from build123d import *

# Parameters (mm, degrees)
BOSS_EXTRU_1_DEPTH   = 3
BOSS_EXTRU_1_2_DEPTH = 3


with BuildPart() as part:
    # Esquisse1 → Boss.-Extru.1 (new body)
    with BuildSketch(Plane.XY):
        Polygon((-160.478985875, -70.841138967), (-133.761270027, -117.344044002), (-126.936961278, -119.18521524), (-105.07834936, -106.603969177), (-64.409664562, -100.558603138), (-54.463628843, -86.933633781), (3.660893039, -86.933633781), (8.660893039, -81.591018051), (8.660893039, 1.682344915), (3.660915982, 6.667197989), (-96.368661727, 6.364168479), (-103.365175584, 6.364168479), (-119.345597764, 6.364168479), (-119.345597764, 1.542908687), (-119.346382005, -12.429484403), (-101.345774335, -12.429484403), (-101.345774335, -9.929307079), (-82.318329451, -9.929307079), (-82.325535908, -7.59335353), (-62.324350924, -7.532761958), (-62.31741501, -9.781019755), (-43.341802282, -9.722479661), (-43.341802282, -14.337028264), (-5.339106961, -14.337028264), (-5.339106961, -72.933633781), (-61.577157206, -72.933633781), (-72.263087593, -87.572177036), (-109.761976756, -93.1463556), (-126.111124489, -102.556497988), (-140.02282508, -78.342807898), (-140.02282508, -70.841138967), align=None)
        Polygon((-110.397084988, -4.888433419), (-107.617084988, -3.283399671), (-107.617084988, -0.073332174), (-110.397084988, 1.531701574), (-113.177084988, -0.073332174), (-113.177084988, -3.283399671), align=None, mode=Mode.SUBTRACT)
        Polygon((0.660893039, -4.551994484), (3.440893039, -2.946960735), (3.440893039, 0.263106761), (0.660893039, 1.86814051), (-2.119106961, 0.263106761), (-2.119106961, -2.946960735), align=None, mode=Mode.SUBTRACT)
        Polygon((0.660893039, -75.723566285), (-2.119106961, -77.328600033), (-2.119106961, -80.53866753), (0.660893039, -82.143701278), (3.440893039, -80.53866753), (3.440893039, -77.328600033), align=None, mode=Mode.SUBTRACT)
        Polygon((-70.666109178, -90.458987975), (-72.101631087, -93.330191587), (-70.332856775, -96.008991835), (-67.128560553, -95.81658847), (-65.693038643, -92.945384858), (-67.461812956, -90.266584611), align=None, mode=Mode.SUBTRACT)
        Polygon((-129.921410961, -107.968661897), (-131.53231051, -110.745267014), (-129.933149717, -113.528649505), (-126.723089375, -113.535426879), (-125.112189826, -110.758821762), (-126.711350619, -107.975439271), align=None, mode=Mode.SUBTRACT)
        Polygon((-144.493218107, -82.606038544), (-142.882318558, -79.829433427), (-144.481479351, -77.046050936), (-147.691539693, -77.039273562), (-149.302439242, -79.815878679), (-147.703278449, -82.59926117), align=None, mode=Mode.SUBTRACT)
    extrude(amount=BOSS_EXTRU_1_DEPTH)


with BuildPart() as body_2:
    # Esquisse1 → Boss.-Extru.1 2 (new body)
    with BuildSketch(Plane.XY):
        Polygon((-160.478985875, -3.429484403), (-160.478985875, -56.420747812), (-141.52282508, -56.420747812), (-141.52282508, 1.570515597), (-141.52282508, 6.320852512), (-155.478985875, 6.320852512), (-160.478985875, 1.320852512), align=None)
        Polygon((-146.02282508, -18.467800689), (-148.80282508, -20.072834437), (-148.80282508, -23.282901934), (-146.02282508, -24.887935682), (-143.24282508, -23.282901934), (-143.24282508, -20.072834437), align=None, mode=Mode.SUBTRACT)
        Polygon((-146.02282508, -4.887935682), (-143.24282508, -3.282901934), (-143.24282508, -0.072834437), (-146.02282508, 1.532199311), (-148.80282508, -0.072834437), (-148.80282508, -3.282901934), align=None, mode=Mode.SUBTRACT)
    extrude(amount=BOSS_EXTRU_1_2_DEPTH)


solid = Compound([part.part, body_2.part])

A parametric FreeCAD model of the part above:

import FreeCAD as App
import Part
import Sketcher
Q = App.Units.Quantity

doc = App.newDocument("Part")
body = doc.addObject("PartDesign::Body", "Body")

# Sketch on XY plane
sketch1 = body.newObject("Sketcher::SketchObject", "Sketch")
sketch1.AttachmentSupport = (doc.getObject("XY_Plane"), [""])
sketch1.MapMode = "FlatFace"
sketch1.addGeometry([
    Part.LineSegment(App.Vector(-160.5, -70.8, 0), App.Vector(-133.8, -117.3, 0)),  # 0
    Part.LineSegment(App.Vector(-133.8, -117.3, 0), App.Vector(-126.9, -119.2, 0)),  # 1
    Part.LineSegment(App.Vector(-126.9, -119.2, 0), App.Vector(-105.1, -106.6, 0)),  # 2
    Part.LineSegment(App.Vector(-105.1, -106.6, 0), App.Vector(-64.4, -100.6, 0)),  # 3
    Part.LineSegment(App.Vector(-64.4, -100.6, 0), App.Vector(-54.5, -86.9, 0)),  # 4
    Part.LineSegment(App.Vector(-54.5, -86.9, 0), App.Vector(3.7, -86.9, 0)),  # 5
    Part.LineSegment(App.Vector(3.7, -86.9, 0), App.Vector(8.7, -81.6, 0)),  # 6
    Part.LineSegment(App.Vector(8.7, -81.6, 0), App.Vector(8.7, 1.7, 0)),  # 7
    Part.LineSegment(App.Vector(8.7, 1.7, 0), App.Vector(3.7, 6.7, 0)),  # 8
    Part.LineSegment(App.Vector(3.7, 6.7, 0), App.Vector(-96.4, 6.4, 0)),  # 9
    Part.LineSegment(App.Vector(-96.4, 6.4, 0), App.Vector(-119.3, 6.4, 0)),  # 10
    Part.LineSegment(App.Vector(-119.3, 6.4, 0), App.Vector(-119.3, 1.5, 0)),  # 11
    Part.LineSegment(App.Vector(-119.3, 1.5, 0), App.Vector(-119.3, -12.4, 0)),  # 12
    Part.LineSegment(App.Vector(-119.3, -12.4, 0), App.Vector(-101.3, -12.4, 0)),  # 13
    Part.LineSegment(App.Vector(-101.3, -12.4, 0), App.Vector(-101.3, -9.9, 0)),  # 14
    Part.LineSegment(App.Vector(-101.3, -9.9, 0), App.Vector(-82.3, -9.9, 0)),  # 15
    Part.LineSegment(App.Vector(-82.3, -9.9, 0), App.Vector(-82.3, -7.6, 0)),  # 16
    Part.LineSegment(App.Vector(-82.3, -7.6, 0), App.Vector(-62.3, -7.5, 0)),  # 17
    Part.LineSegment(App.Vector(-62.3, -7.5, 0), App.Vector(-62.3, -9.8, 0)),  # 18
    Part.LineSegment(App.Vector(-62.3, -9.8, 0), App.Vector(-43.3, -9.7, 0)),  # 19
    Part.LineSegment(App.Vector(-43.3, -9.7, 0), App.Vector(-43.3, -14.3, 0)),  # 20
    Part.LineSegment(App.Vector(-43.3, -14.3, 0), App.Vector(-5.3, -14.3, 0)),  # 21
    Part.LineSegment(App.Vector(-5.3, -14.3, 0), App.Vector(-5.3, -72.9, 0)),  # 22
    Part.LineSegment(App.Vector(-5.3, -72.9, 0), App.Vector(-61.6, -72.9, 0)),  # 23
    Part.LineSegment(App.Vector(-61.6, -72.9, 0), App.Vector(-72.3, -87.6, 0)),  # 24
    Part.LineSegment(App.Vector(-72.3, -87.6, 0), App.Vector(-109.8, -93.1, 0)),  # 25
    Part.LineSegment(App.Vector(-109.8, -93.1, 0), App.Vector(-126.1, -102.6, 0)),  # 26
    Part.LineSegment(App.Vector(-126.1, -102.6, 0), App.Vector(-140, -78.3, 0)),  # 27
    Part.LineSegment(App.Vector(-140, -78.3, 0), App.Vector(-140, -70.8, 0)),  # 28
    Part.LineSegment(App.Vector(-140, -70.8, 0), App.Vector(-160.5, -70.8, 0)),  # 29
    Part.LineSegment(App.Vector(-131.5, -110.7, 0), App.Vector(-129.9, -108, 0)),  # 30
    Part.LineSegment(App.Vector(-129.9, -108, 0), App.Vector(-126.7, -108, 0)),  # 31
    Part.LineSegment(App.Vector(-126.7, -108, 0), App.Vector(-125.1, -110.8, 0)),  # 32
    Part.LineSegment(App.Vector(-125.1, -110.8, 0), App.Vector(-126.7, -113.5, 0)),  # 33
    Part.LineSegment(App.Vector(-126.7, -113.5, 0), App.Vector(-129.9, -113.5, 0)),  # 34
    Part.LineSegment(App.Vector(-129.9, -113.5, 0), App.Vector(-131.5, -110.7, 0)),  # 35
    Part.LineSegment(App.Vector(-142.9, -79.8, 0), App.Vector(-144.5, -82.6, 0)),  # 36
    Part.LineSegment(App.Vector(-144.5, -82.6, 0), App.Vector(-147.7, -82.6, 0)),  # 37
    Part.LineSegment(App.Vector(-147.7, -82.6, 0), App.Vector(-149.3, -79.8, 0)),  # 38
    Part.LineSegment(App.Vector(-149.3, -79.8, 0), App.Vector(-147.7, -77, 0)),  # 39
    Part.LineSegment(App.Vector(-147.7, -77, 0), App.Vector(-144.5, -77, 0)),  # 40
    Part.LineSegment(App.Vector(-144.5, -77, 0), App.Vector(-142.9, -79.8, 0)),  # 41
    Part.LineSegment(App.Vector(-72.1, -93.3, 0), App.Vector(-70.7, -90.5, 0)),  # 42
    Part.LineSegment(App.Vector(-70.7, -90.5, 0), App.Vector(-67.5, -90.3, 0)),  # 43
    Part.LineSegment(App.Vector(-67.5, -90.3, 0), App.Vector(-65.7, -92.9, 0)),  # 44
    Part.LineSegment(App.Vector(-65.7, -92.9, 0), App.Vector(-67.1, -95.8, 0)),  # 45
    Part.LineSegment(App.Vector(-67.1, -95.8, 0), App.Vector(-70.3, -96, 0)),  # 46
    Part.LineSegment(App.Vector(-70.3, -96, 0), App.Vector(-72.1, -93.3, 0)),  # 47
    Part.LineSegment(App.Vector(-2.1, -77.3, 0), App.Vector(0.7, -75.7, 0)),  # 48
    Part.LineSegment(App.Vector(0.7, -75.7, 0), App.Vector(3.4, -77.3, 0)),  # 49
    Part.LineSegment(App.Vector(3.4, -77.3, 0), App.Vector(3.4, -80.5, 0)),  # 50
    Part.LineSegment(App.Vector(3.4, -80.5, 0), App.Vector(0.7, -82.1, 0)),  # 51
    Part.LineSegment(App.Vector(0.7, -82.1, 0), App.Vector(-2.1, -80.5, 0)),  # 52
    Part.LineSegment(App.Vector(-2.1, -80.5, 0), App.Vector(-2.1, -77.3, 0)),  # 53
    Part.LineSegment(App.Vector(-107.6, -3.3, 0), App.Vector(-110.4, -4.9, 0)),  # 54
    Part.LineSegment(App.Vector(-110.4, -4.9, 0), App.Vector(-113.2, -3.3, 0)),  # 55
    Part.LineSegment(App.Vector(-113.2, -3.3, 0), App.Vector(-113.2, -0.1, 0)),  # 56
    Part.LineSegment(App.Vector(-113.2, -0.1, 0), App.Vector(-110.4, 1.5, 0)),  # 57
    Part.LineSegment(App.Vector(-110.4, 1.5, 0), App.Vector(-107.6, -0.1, 0)),  # 58
    Part.LineSegment(App.Vector(-107.6, -0.1, 0), App.Vector(-107.6, -3.3, 0)),  # 59
    Part.LineSegment(App.Vector(3.4, -2.9, 0), App.Vector(0.7, -4.6, 0)),  # 60
    Part.LineSegment(App.Vector(0.7, -4.6, 0), App.Vector(-2.1, -2.9, 0)),  # 61
    Part.LineSegment(App.Vector(-2.1, -2.9, 0), App.Vector(-2.1, 0.3, 0)),  # 62
    Part.LineSegment(App.Vector(-2.1, 0.3, 0), App.Vector(0.7, 1.9, 0)),  # 63
    Part.LineSegment(App.Vector(0.7, 1.9, 0), App.Vector(3.4, 0.3, 0)),  # 64
    Part.LineSegment(App.Vector(3.4, 0.3, 0), App.Vector(3.4, -2.9, 0)),  # 65
], False)
sketch1.addConstraint([
    Sketcher.Constraint("Coincident", 0, 2, 1, 1),
    Sketcher.Constraint("Coincident", 1, 2, 2, 1),
    Sketcher.Constraint("Coincident", 2, 2, 3, 1),
    Sketcher.Constraint("Coincident", 3, 2, 4, 1),
    Sketcher.Constraint("Coincident", 4, 2, 5, 1),
    Sketcher.Constraint("Coincident", 5, 2, 6, 1),
    Sketcher.Constraint("Coincident", 6, 2, 7, 1),
    Sketcher.Constraint("Coincident", 7, 2, 8, 1),
    Sketcher.Constraint("Coincident", 8, 2, 9, 1),
    Sketcher.Constraint("Coincident", 9, 2, 10, 1),
    Sketcher.Constraint("Coincident", 10, 2, 11, 1),
    Sketcher.Constraint("Coincident", 11, 2, 12, 1),
    Sketcher.Constraint("Coincident", 12, 2, 13, 1),
    Sketcher.Constraint("Coincident", 13, 2, 14, 1),
    Sketcher.Constraint("Coincident", 14, 2, 15, 1),
    Sketcher.Constraint("Coincident", 15, 2, 16, 1),
    Sketcher.Constraint("Coincident", 16, 2, 17, 1),
    Sketcher.Constraint("Coincident", 17, 2, 18, 1),
    Sketcher.Constraint("Coincident", 18, 2, 19, 1),
    Sketcher.Constraint("Coincident", 19, 2, 20, 1),
    Sketcher.Constraint("Coincident", 20, 2, 21, 1),
    Sketcher.Constraint("Coincident", 21, 2, 22, 1),
    Sketcher.Constraint("Coincident", 22, 2, 23, 1),
    Sketcher.Constraint("Coincident", 23, 2, 24, 1),
    Sketcher.Constraint("Coincident", 24, 2, 25, 1),
    Sketcher.Constraint("Coincident", 25, 2, 26, 1),
    Sketcher.Constraint("Coincident", 26, 2, 27, 1),
    Sketcher.Constraint("Coincident", 27, 2, 28, 1),
    Sketcher.Constraint("Coincident", 28, 2, 29, 1),
    Sketcher.Constraint("Coincident", 29, 2, 0, 1),
    Sketcher.Constraint("Coincident", 30, 2, 31, 1),
    Sketcher.Constraint("Coincident", 31, 2, 32, 1),
    Sketcher.Constraint("Coincident", 32, 2, 33, 1),
    Sketcher.Constraint("Coincident", 33, 2, 34, 1),
    Sketcher.Constraint("Coincident", 34, 2, 35, 1),
    Sketcher.Constraint("Coincident", 35, 2, 30, 1),
    Sketcher.Constraint("Coincident", 36, 2, 37, 1),
    Sketcher.Constraint("Coincident", 37, 2, 38, 1),
    Sketcher.Constraint("Coincident", 38, 2, 39, 1),
    Sketcher.Constraint("Coincident", 39, 2, 40, 1),
    Sketcher.Constraint("Coincident", 40, 2, 41, 1),
    Sketcher.Constraint("Coincident", 41, 2, 36, 1),
    Sketcher.Constraint("Coincident", 42, 2, 43, 1),
    Sketcher.Constraint("Coincident", 43, 2, 44, 1),
    Sketcher.Constraint("Coincident", 44, 2, 45, 1),
    Sketcher.Constraint("Coincident", 45, 2, 46, 1),
    Sketcher.Constraint("Coincident", 46, 2, 47, 1),
    Sketcher.Constraint("Coincident", 47, 2, 42, 1),
    Sketcher.Constraint("Coincident", 48, 2, 49, 1),
    Sketcher.Constraint("Coincident", 49, 2, 50, 1),
    Sketcher.Constraint("Coincident", 50, 2, 51, 1),
    Sketcher.Constraint("Coincident", 51, 2, 52, 1),
    Sketcher.Constraint("Coincident", 52, 2, 53, 1),
    Sketcher.Constraint("Coincident", 53, 2, 48, 1),
    Sketcher.Constraint("Coincident", 54, 2, 55, 1),
    Sketcher.Constraint("Coincident", 55, 2, 56, 1),
    Sketcher.Constraint("Coincident", 56, 2, 57, 1),
    Sketcher.Constraint("Coincident", 57, 2, 58, 1),
    Sketcher.Constraint("Coincident", 58, 2, 59, 1),
    Sketcher.Constraint("Coincident", 59, 2, 54, 1),
    Sketcher.Constraint("Coincident", 60, 2, 61, 1),
    Sketcher.Constraint("Coincident", 61, 2, 62, 1),
    Sketcher.Constraint("Coincident", 62, 2, 63, 1),
    Sketcher.Constraint("Coincident", 63, 2, 64, 1),
    Sketcher.Constraint("Coincident", 64, 2, 65, 1),
    Sketcher.Constraint("Coincident", 65, 2, 60, 1),
    Sketcher.Constraint("Horizontal", 5),
    Sketcher.Constraint("Vertical", 7),
    Sketcher.Constraint("Horizontal", 10),
    Sketcher.Constraint("Vertical", 11),
    Sketcher.Constraint("Horizontal", 13),
    Sketcher.Constraint("Vertical", 14),
    Sketcher.Constraint("Horizontal", 15),
    Sketcher.Constraint("Vertical", 20),
    Sketcher.Constraint("Horizontal", 21),
    Sketcher.Constraint("Vertical", 22),
    Sketcher.Constraint("Horizontal", 23),
    Sketcher.Constraint("Vertical", 28),
    Sketcher.Constraint("Horizontal", 29),
    Sketcher.Constraint("Vertical", 50),
    Sketcher.Constraint("Vertical", 53),
    Sketcher.Constraint("Vertical", 56),
    Sketcher.Constraint("Vertical", 59),
    Sketcher.Constraint("Vertical", 62),
    Sketcher.Constraint("Vertical", 65),
    Sketcher.Constraint("Parallel", 9, 17),
    Sketcher.Constraint("Parallel", 16, 18),
    Sketcher.Constraint("Perpendicular", 18, 19),
    Sketcher.Constraint("Parallel", 4, 24),
    Sketcher.Constraint("Parallel", 3, 25),
    Sketcher.Constraint("Parallel", 2, 26),
    Sketcher.Constraint("Parallel", 0, 27),
    Sketcher.Constraint("Parallel", 27, 32),
    Sketcher.Constraint("Parallel", 30, 33),
    Sketcher.Constraint("Parallel", 31, 34),
    Sketcher.Constraint("Parallel", 32, 35),
    Sketcher.Constraint("Parallel", 33, 36),
    Sketcher.Constraint("Parallel", 34, 37),
    Sketcher.Constraint("Parallel", 35, 38),
    Sketcher.Constraint("Parallel", 36, 39),
    Sketcher.Constraint("Parallel", 37, 40),
    Sketcher.Constraint("Parallel", 38, 41),
    Sketcher.Constraint("Parallel", 42, 45),
    Sketcher.Constraint("Parallel", 43, 46),
    Sketcher.Constraint("Parallel", 44, 47),
    Sketcher.Constraint("Parallel", 48, 51),
    Sketcher.Constraint("Parallel", 49, 52),
    Sketcher.Constraint("Parallel", 51, 54),
    Sketcher.Constraint("Parallel", 52, 55),
    Sketcher.Constraint("Parallel", 54, 57),
    Sketcher.Constraint("Parallel", 55, 58),
    Sketcher.Constraint("Parallel", 57, 60),
    Sketcher.Constraint("Parallel", 58, 61),
    Sketcher.Constraint("Parallel", 60, 63),
    Sketcher.Constraint("Parallel", 61, 64),
    Sketcher.Constraint("Horizontal", 50, 2, 52, 2),
    Sketcher.Constraint("Horizontal", 49, 2, 53, 2),
    Sketcher.Constraint("Horizontal", 56, 2, 58, 2),
    Sketcher.Constraint("Horizontal", 55, 2, 59, 2),
    Sketcher.Constraint("Horizontal", 62, 2, 64, 2),
    Sketcher.Constraint("Horizontal", 61, 2, 65, 2),
    Sketcher.Constraint("Vertical", 48, 2, 51, 2),
    Sketcher.Constraint("Vertical", 51, 2, 60, 2),
    Sketcher.Constraint("Vertical", 53, 2, 61, 2),
    Sketcher.Constraint("Equal", 53, 56),
    Sketcher.Constraint("Equal", 59, 62),
    Sketcher.Constraint("Equal", 30, 31),
    Sketcher.Constraint("Equal", 31, 32),
    Sketcher.Constraint("Equal", 32, 33),
    Sketcher.Constraint("Equal", 35, 36),
    Sketcher.Constraint("Equal", 36, 37),
    Sketcher.Constraint("Equal", 37, 38),
    Sketcher.Constraint("Equal", 38, 39),
    Sketcher.Constraint("Equal", 41, 42),
    Sketcher.Constraint("Equal", 42, 43),
    Sketcher.Constraint("Equal", 43, 44),
    Sketcher.Constraint("Equal", 44, 45),
    Sketcher.Constraint("Equal", 47, 48),
    Sketcher.Constraint("Equal", 52, 54),
    Sketcher.Constraint("Angle", 48, Q("30 deg")),
    Sketcher.Constraint("DistanceX", 5, 1, 5, 2, Q("58.124522 mm")),
    Sketcher.Constraint("DistanceX", 23, 2, 23, 1, Q("56.23805 mm")),
    Sketcher.Constraint("DistanceX", 29, 2, 29, 1, Q("20.456161 mm")),
    Sketcher.Constraint("DistanceY", 11, 2, 11, 1, Q("4.82126 mm")),
    Sketcher.Constraint("DistanceY", 20, 2, 20, 1, Q("4.614549 mm")),
    Sketcher.Constraint("DistanceY", 28, 1, 28, 2, Q("7.501669 mm")),
    Sketcher.Constraint("DistanceY", 49, 2, -1, 1, Q("77.3286 mm")),
    Sketcher.Constraint("DistanceY", 51, 2, -1, 1, Q("82.143701 mm")),
    Sketcher.Constraint("DistanceY", 55, 2, -1, 1, Q("3.2834 mm")),
    Sketcher.Constraint("Distance", 2, Q("25.220759 mm")),
    Sketcher.Constraint("Distance", 3, Q("41.115549 mm")),
    Sketcher.Constraint("Distance", 8, Q("7.060349 mm")),
    Sketcher.Constraint("Distance", 18, Q("2.248268 mm")),
    Sketcher.Constraint("Distance", 24, Q("18.123908 mm")),
    Sketcher.Constraint("DistanceX", 10, 2, 10, 1, Q("22.976936 mm")),
    Sketcher.Constraint("DistanceX", 13, 1, 13, 2, Q("18.000608 mm")),
    Sketcher.Constraint("DistanceX", 15, 1, 15, 2, Q("19.027445 mm")),
    Sketcher.Constraint("DistanceX", 21, 1, 21, 2, Q("38.002695 mm")),
    Sketcher.Constraint("DistanceY", 7, 1, 7, 2, Q("83.273363 mm")),
    Sketcher.Constraint("DistanceY", 14, 1, 14, 2, Q("2.500177 mm")),
    Sketcher.Constraint("DistanceY", 22, 2, 22, 1, Q("58.596606 mm")),
    Sketcher.Constraint("DistanceY", 50, 2, 50, 1, Q("3.210067 mm")),
    Sketcher.Constraint("DistanceX", 0, 2, -1, 1, Q("133.76127 mm")),
    Sketcher.Constraint("DistanceX", 1, 2, -1, 1, Q("126.936961 mm")),
    Sketcher.Constraint("DistanceX", 2, 2, -1, 1, Q("105.078349 mm")),
    Sketcher.Constraint("DistanceY", 2, 2, -1, 1, Q("106.603969 mm")),
    Sketcher.Constraint("DistanceX", 4, 2, -1, 1, Q("54.463629 mm")),
    Sketcher.Constraint("DistanceY", 6, 2, -1, 1, Q("81.591018 mm")),
    Sketcher.Constraint("DistanceX", 9, 2, -1, 1, Q("96.368662 mm")),
    Sketcher.Constraint("DistanceY", -1, 1, 9, 2, Q("6.364168 mm")),
    Sketcher.Constraint("DistanceX", 15, 2, -1, 1, Q("82.318329 mm")),
    Sketcher.Constraint("DistanceX", 17, 2, -1, 1, Q("62.324351 mm")),
    Sketcher.Constraint("DistanceY", 17, 2, -1, 1, Q("7.532762 mm")),
    Sketcher.Constraint("DistanceY", 19, 2, -1, 1, Q("9.72248 mm")),
    Sketcher.Constraint("DistanceY", 28, 2, -1, 1, Q("70.841139 mm")),
    Sketcher.Constraint("DistanceX", 30, 2, -1, 1, Q("129.921411 mm")),
    Sketcher.Constraint("DistanceY", 30, 2, -1, 1, Q("107.968662 mm")),
    Sketcher.Constraint("DistanceY", 31, 2, -1, 1, Q("107.975439 mm")),
    Sketcher.Constraint("DistanceX", 32, 2, -1, 1, Q("125.11219 mm")),
    Sketcher.Constraint("DistanceX", 33, 2, -1, 1, Q("126.723089 mm")),
    Sketcher.Constraint("DistanceX", 36, 2, -1, 1, Q("144.493218 mm")),
    Sketcher.Constraint("DistanceY", 36, 2, -1, 1, Q("82.606039 mm")),
    Sketcher.Constraint("DistanceX", 42, 2, -1, 1, Q("70.666109 mm")),
    Sketcher.Constraint("DistanceX", 44, 2, -1, 1, Q("65.693039 mm")),
    Sketcher.Constraint("DistanceX", 45, 2, -1, 1, Q("67.128561 mm")),
    Sketcher.Constraint("DistanceY", 45, 2, -1, 1, Q("95.816588 mm")),
    Sketcher.Constraint("DistanceY", 46, 2, -1, 1, Q("96.008992 mm")),
    Sketcher.Constraint("DistanceY", 61, 2, -1, 1, Q("2.946961 mm")),
    Sketcher.Constraint("Distance", 0, Q("53.631675 mm")),
    Sketcher.Constraint("Distance", 4, Q("16.869008 mm")),
    Sketcher.Constraint("Distance", 6, Q("7.317345 mm")),
    Sketcher.Constraint("Distance", 9, Q("100.030037 mm")),
    Sketcher.Constraint("Distance", 12, Q("13.972393 mm")),
    Sketcher.Constraint("Distance", 16, Q("2.335965 mm")),
    Sketcher.Constraint("Distance", 19, Q("18.975703 mm")),
    Sketcher.Constraint("Distance", 25, Q("37.910924 mm")),
    Sketcher.Constraint("DistanceX", -1, 1, 48, 2, Q("0.660893 mm")),
    Sketcher.Constraint("DistanceX", 54, 2, -1, 1, Q("110.397085 mm")),
])
pad1 = body.newObject("PartDesign::Pad", "Pad")
pad1.Profile = sketch1
pad1.Length = 3
body2 = doc.addObject("PartDesign::Body", "Body001")

# Sketch on XY plane
sketch2 = body2.newObject("Sketcher::SketchObject", "Sketch001")
sketch2.AttachmentSupport = (doc.getObject("XY_Plane001"), [""])
sketch2.MapMode = "FlatFace"
sketch2.addGeometry([
    Part.LineSegment(App.Vector(-160.5, -56.4, 0), App.Vector(-141.5, -56.4, 0)),  # 0
    Part.LineSegment(App.Vector(-141.5, -56.4, 0), App.Vector(-141.5, 6.3, 0)),  # 1
    Part.LineSegment(App.Vector(-141.5, 6.3, 0), App.Vector(-155.5, 6.3, 0)),  # 2
    Part.LineSegment(App.Vector(-155.5, 6.3, 0), App.Vector(-160.5, 1.3, 0)),  # 3
    Part.LineSegment(App.Vector(-160.5, 1.3, 0), App.Vector(-160.5, -56.4, 0)),  # 4
    Part.LineSegment(App.Vector(-148.8, -20.1, 0), App.Vector(-146, -18.5, 0)),  # 5
    Part.LineSegment(App.Vector(-146, -18.5, 0), App.Vector(-143.2, -20.1, 0)),  # 6
    Part.LineSegment(App.Vector(-143.2, -20.1, 0), App.Vector(-143.2, -23.3, 0)),  # 7
    Part.LineSegment(App.Vector(-143.2, -23.3, 0), App.Vector(-146, -24.9, 0)),  # 8
    Part.LineSegment(App.Vector(-146, -24.9, 0), App.Vector(-148.8, -23.3, 0)),  # 9
    Part.LineSegment(App.Vector(-148.8, -23.3, 0), App.Vector(-148.8, -20.1, 0)),  # 10
    Part.LineSegment(App.Vector(-143.2, -3.3, 0), App.Vector(-146, -4.9, 0)),  # 11
    Part.LineSegment(App.Vector(-146, -4.9, 0), App.Vector(-148.8, -3.3, 0)),  # 12
    Part.LineSegment(App.Vector(-148.8, -3.3, 0), App.Vector(-148.8, -0.1, 0)),  # 13
    Part.LineSegment(App.Vector(-148.8, -0.1, 0), App.Vector(-146, 1.5, 0)),  # 14
    Part.LineSegment(App.Vector(-146, 1.5, 0), App.Vector(-143.2, -0.1, 0)),  # 15
    Part.LineSegment(App.Vector(-143.2, -0.1, 0), App.Vector(-143.2, -3.3, 0)),  # 16
], False)
sketch2.addConstraint([
    Sketcher.Constraint("Coincident", 0, 2, 1, 1),
    Sketcher.Constraint("Coincident", 1, 2, 2, 1),
    Sketcher.Constraint("Coincident", 2, 2, 3, 1),
    Sketcher.Constraint("Coincident", 3, 2, 4, 1),
    Sketcher.Constraint("Coincident", 4, 2, 0, 1),
    Sketcher.Constraint("Coincident", 5, 2, 6, 1),
    Sketcher.Constraint("Coincident", 6, 2, 7, 1),
    Sketcher.Constraint("Coincident", 7, 2, 8, 1),
    Sketcher.Constraint("Coincident", 8, 2, 9, 1),
    Sketcher.Constraint("Coincident", 9, 2, 10, 1),
    Sketcher.Constraint("Coincident", 10, 2, 5, 1),
    Sketcher.Constraint("Coincident", 11, 2, 12, 1),
    Sketcher.Constraint("Coincident", 12, 2, 13, 1),
    Sketcher.Constraint("Coincident", 13, 2, 14, 1),
    Sketcher.Constraint("Coincident", 14, 2, 15, 1),
    Sketcher.Constraint("Coincident", 15, 2, 16, 1),
    Sketcher.Constraint("Coincident", 16, 2, 11, 1),
    Sketcher.Constraint("Horizontal", 0),
    Sketcher.Constraint("Vertical", 1),
    Sketcher.Constraint("Horizontal", 2),
    Sketcher.Constraint("Vertical", 4),
    Sketcher.Constraint("Vertical", 7),
    Sketcher.Constraint("Vertical", 10),
    Sketcher.Constraint("Vertical", 13),
    Sketcher.Constraint("Vertical", 16),
    Sketcher.Constraint("Parallel", 5, 8),
    Sketcher.Constraint("Parallel", 6, 9),
    Sketcher.Constraint("Parallel", 8, 11),
    Sketcher.Constraint("Parallel", 9, 12),
    Sketcher.Constraint("Parallel", 11, 14),
    Sketcher.Constraint("Parallel", 12, 15),
    Sketcher.Constraint("Horizontal", 7, 2, 9, 2),
    Sketcher.Constraint("Horizontal", 6, 2, 10, 2),
    Sketcher.Constraint("Horizontal", 13, 2, 15, 2),
    Sketcher.Constraint("Horizontal", 12, 2, 16, 2),
    Sketcher.Constraint("Vertical", 5, 2, 8, 2),
    Sketcher.Constraint("Vertical", 8, 2, 11, 2),
    Sketcher.Constraint("Vertical", 10, 2, 12, 2),
    Sketcher.Constraint("Equal", 10, 13),
    Sketcher.Constraint("Angle", 3, Q("-135 deg")),
    Sketcher.Constraint("Angle", 5, Q("30 deg")),
    Sketcher.Constraint("DistanceX", 3, 2, 2, 2, Q("5 mm")),
    Sketcher.Constraint("DistanceX", 5, 2, 1, 2, Q("4.5 mm")),
    Sketcher.Constraint("DistanceX", 5, 2, 6, 2, Q("2.78 mm")),
    Sketcher.Constraint("DistanceY", 1, 1, 1, 2, Q("62.7416 mm")),
    Sketcher.Constraint("DistanceX", 0, 1, 0, 2, Q("18.956161 mm")),
    Sketcher.Constraint("DistanceY", 5, 2, -1, 1, Q("18.467801 mm")),
    Sketcher.Constraint("DistanceY", 7, 2, -1, 1, Q("23.282902 mm")),
    Sketcher.Constraint("DistanceY", 12, 2, -1, 1, Q("3.282902 mm")),
    Sketcher.Constraint("DistanceY", 8, 2, 3, 2, Q("26.208788 mm")),
    Sketcher.Constraint("DistanceX", 0, 2, -1, 1, Q("141.522825 mm")),
])
pad2 = body2.newObject("PartDesign::Pad", "Pad001")
pad2.Profile = sketch2
pad2.Length = 3

doc.recompute()
